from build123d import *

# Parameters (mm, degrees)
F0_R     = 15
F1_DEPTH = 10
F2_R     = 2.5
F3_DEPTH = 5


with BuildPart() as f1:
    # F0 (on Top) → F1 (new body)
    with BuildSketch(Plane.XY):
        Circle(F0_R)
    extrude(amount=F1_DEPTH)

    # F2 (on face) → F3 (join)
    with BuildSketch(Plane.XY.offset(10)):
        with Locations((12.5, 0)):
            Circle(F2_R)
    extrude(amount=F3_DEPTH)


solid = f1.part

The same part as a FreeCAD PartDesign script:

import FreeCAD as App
import Part
import Sketcher

V = App.Vector

doc = App.newDocument("Part")
params = doc.addObject("Spreadsheet::Sheet", "Params")
for row, (alias, value) in enumerate([
    ("sketch1_diameter", "30 mm"),
    ("pad1_length", "10 mm"),
    ("sketch2_diameter", "5 mm"),
    ("pad2_length", "5 mm"),
], start=1):
    params.set(f"A{row}", alias)
    params.set(f"B{row}", "=" + value)
    params.setAlias(f"B{row}", alias)

body = doc.addObject("PartDesign::Body", "Body")

# Sketch on XY plane
sketch1 = doc.addObject("Sketcher::SketchObject", "Sketch")
body.addObject(sketch1)
sketch1.AttachmentSupport = (doc.XY_Plane, [""])
sketch1.MapMode = "FlatFace"
sketch1.addGeometry(Part.Circle(V(0, 0, 0), V(0, 0, 1), 15), False)
sketch1.addConstraint([
    Sketcher.Constraint("Coincident", 0, 3, -1, 1),
    Sketcher.Constraint("Diameter", 0, 30.0),
])
sketch1.setExpression("Constraints[1]", "Params.sketch1_diameter")
pad1 = doc.addObject("PartDesign::Pad", "Pad")
body.addObject(pad1)
pad1.Profile = sketch1
pad1.setExpression("Length", "Params.pad1_length")

# Sketch on XY plane
sketch2 = doc.addObject("Sketcher::SketchObject", "Sketch001")
body.addObject(sketch2)
sketch2.AttachmentSupport = (doc.XY_Plane, [""])
sketch2.MapMode = "FlatFace"
sketch2.AttachmentOffset = App.Placement(V(0, 0, 10), App.Rotation())
sketch2.addGeometry(Part.Circle(V(12.5, 0, 0), V(0, 0, 1), 2.5), False)
sketch2.addConstraint([
    Sketcher.Constraint("PointOnObject", 0, 3, -1),
    Sketcher.Constraint("Diameter", 0, 5.0),
    Sketcher.Constraint("DistanceX", -1, 1, 0, 3, 12.5),
])
sketch2.setExpression("Constraints[1]", "Params.sketch2_diameter")
pad2 = doc.addObject("PartDesign::Pad", "Pad001")
body.addObject(pad2)
pad2.Profile = sketch2
pad2.setExpression("Length", "Params.pad2_length")

doc.recompute()
